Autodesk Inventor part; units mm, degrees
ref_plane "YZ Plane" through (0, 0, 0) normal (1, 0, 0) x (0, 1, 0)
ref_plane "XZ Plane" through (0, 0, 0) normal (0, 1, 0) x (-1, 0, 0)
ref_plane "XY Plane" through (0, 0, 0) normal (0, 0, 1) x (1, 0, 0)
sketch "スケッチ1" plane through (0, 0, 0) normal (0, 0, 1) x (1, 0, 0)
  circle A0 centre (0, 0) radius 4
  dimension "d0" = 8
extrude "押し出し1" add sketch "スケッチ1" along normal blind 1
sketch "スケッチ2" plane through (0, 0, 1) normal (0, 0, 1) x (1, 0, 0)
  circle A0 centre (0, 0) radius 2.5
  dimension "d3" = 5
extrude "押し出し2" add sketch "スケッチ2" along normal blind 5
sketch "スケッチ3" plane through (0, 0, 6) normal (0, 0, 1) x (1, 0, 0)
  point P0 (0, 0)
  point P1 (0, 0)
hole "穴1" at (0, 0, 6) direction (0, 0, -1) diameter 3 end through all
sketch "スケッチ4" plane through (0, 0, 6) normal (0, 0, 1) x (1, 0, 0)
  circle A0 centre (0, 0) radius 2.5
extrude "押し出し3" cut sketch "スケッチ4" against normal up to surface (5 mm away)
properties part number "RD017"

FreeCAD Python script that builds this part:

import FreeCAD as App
import Part
import Sketcher

doc = App.newDocument("Part")
params = doc.addObject("Spreadsheet::Sheet", "Params")
for row, (alias, value) in enumerate([
    ("sketch1_diameter", "8 mm"),
    ("pad1_length", "1 mm"),
    ("sketch2_diameter", "5 mm"),
    ("pad2_length", "5 mm"),
    ("sketch3_diameter", "3 mm"),
    ("hole_diameter", "3 mm"),
    ("sketch4_diameter", "5 mm"),
    ("pocket1_length", "5 mm"),
], start=1):
    params.set(f"A{row}", alias)
    params.set(f"B{row}", "=" + value)
    params.setAlias(f"B{row}", alias)

body = doc.addObject("PartDesign::Body", "Body")

sketch1 = body.newObject("Sketcher::SketchObject", "Sketch")
sketch1.AttachmentSupport = (doc.getObject("XY_Plane"), [""])
sketch1.MapMode = "FlatFace"
sketch1.addGeometry(Part.Circle(App.Vector(0, 0, 0), App.Vector(0, 0, 1), 4), False)
sketch1.addConstraint(Sketcher.Constraint("Coincident", 0, 3, -1, 1))
sketch1.addConstraint(Sketcher.Constraint("Diameter", 0, 8.0))
sketch1.setExpression("Constraints[1]", "Params.sketch1_diameter")
pad1 = body.newObject("PartDesign::Pad", "Pad")
pad1.Profile = sketch1
pad1.setExpression("Length", "Params.pad1_length")

sketch2 = body.newObject("Sketcher::SketchObject", "Sketch001")
sketch2.AttachmentSupport = (doc.getObject("XY_Plane"), [""])
sketch2.MapMode = "FlatFace"
sketch2.AttachmentOffset = App.Placement(App.Vector(0, 0, 1), App.Rotation())
sketch2.addGeometry(Part.Circle(App.Vector(0, 0, 0), App.Vector(0, 0, 1), 2.5), False)
sketch2.addConstraint(Sketcher.Constraint("Coincident", 0, 3, -1, 1))
sketch2.addConstraint(Sketcher.Constraint("Diameter", 0, 5.0))
sketch2.setExpression("Constraints[1]", "Params.sketch2_diameter")
pad2 = body.newObject("PartDesign::Pad", "Pad001")
pad2.Profile = sketch2
pad2.setExpression("Length", "Params.pad2_length")

sketch3 = body.newObject("Sketcher::SketchObject", "Sketch002")
sketch3.AttachmentSupport = (doc.getObject("XY_Plane"), [""])
sketch3.MapMode = "FlatFace"
sketch3.AttachmentOffset = App.Placement(App.Vector(0, 0, 6), App.Rotation())
sketch3.addGeometry(Part.Circle(App.Vector(0, 0, 0), App.Vector(0, 0, 1), 1.5), False)
sketch3.addConstraint(Sketcher.Constraint("Coincident", 0, 3, -1, 1))
sketch3.addConstraint(Sketcher.Constraint("Diameter", 0, 3.0))
sketch3.setExpression("Constraints[1]", "Params.sketch3_diameter")
doc.recompute()
hole = body.newObject("PartDesign::Hole", "Hole")
hole.Profile = sketch3
hole.ThreadType = "None"
hole.setExpression("Diameter", "Params.hole_diameter")
hole.DepthType = "ThroughAll"

sketch4 = body.newObject("Sketcher::SketchObject", "Sketch003")
sketch4.AttachmentSupport = (doc.getObject("XY_Plane"), [""])
sketch4.MapMode = "FlatFace"
sketch4.AttachmentOffset = App.Placement(App.Vector(0, 0, 6), App.Rotation())
sketch4.addGeometry(Part.Circle(App.Vector(0, 0, 0), App.Vector(0, 0, 1), 2.5), False)
sketch4.addConstraint(Sketcher.Constraint("Coincident", 0, 3, -1, 1))
sketch4.addConstraint(Sketcher.Constraint("Diameter", 0, 5.0))
sketch4.setExpression("Constraints[1]", "Params.sketch4_diameter")
pocket1 = body.newObject("PartDesign::Pocket", "Pocket")
pocket1.Profile = sketch4
pocket1.setExpression("Length", "Params.pocket1_length")

doc.recompute()
